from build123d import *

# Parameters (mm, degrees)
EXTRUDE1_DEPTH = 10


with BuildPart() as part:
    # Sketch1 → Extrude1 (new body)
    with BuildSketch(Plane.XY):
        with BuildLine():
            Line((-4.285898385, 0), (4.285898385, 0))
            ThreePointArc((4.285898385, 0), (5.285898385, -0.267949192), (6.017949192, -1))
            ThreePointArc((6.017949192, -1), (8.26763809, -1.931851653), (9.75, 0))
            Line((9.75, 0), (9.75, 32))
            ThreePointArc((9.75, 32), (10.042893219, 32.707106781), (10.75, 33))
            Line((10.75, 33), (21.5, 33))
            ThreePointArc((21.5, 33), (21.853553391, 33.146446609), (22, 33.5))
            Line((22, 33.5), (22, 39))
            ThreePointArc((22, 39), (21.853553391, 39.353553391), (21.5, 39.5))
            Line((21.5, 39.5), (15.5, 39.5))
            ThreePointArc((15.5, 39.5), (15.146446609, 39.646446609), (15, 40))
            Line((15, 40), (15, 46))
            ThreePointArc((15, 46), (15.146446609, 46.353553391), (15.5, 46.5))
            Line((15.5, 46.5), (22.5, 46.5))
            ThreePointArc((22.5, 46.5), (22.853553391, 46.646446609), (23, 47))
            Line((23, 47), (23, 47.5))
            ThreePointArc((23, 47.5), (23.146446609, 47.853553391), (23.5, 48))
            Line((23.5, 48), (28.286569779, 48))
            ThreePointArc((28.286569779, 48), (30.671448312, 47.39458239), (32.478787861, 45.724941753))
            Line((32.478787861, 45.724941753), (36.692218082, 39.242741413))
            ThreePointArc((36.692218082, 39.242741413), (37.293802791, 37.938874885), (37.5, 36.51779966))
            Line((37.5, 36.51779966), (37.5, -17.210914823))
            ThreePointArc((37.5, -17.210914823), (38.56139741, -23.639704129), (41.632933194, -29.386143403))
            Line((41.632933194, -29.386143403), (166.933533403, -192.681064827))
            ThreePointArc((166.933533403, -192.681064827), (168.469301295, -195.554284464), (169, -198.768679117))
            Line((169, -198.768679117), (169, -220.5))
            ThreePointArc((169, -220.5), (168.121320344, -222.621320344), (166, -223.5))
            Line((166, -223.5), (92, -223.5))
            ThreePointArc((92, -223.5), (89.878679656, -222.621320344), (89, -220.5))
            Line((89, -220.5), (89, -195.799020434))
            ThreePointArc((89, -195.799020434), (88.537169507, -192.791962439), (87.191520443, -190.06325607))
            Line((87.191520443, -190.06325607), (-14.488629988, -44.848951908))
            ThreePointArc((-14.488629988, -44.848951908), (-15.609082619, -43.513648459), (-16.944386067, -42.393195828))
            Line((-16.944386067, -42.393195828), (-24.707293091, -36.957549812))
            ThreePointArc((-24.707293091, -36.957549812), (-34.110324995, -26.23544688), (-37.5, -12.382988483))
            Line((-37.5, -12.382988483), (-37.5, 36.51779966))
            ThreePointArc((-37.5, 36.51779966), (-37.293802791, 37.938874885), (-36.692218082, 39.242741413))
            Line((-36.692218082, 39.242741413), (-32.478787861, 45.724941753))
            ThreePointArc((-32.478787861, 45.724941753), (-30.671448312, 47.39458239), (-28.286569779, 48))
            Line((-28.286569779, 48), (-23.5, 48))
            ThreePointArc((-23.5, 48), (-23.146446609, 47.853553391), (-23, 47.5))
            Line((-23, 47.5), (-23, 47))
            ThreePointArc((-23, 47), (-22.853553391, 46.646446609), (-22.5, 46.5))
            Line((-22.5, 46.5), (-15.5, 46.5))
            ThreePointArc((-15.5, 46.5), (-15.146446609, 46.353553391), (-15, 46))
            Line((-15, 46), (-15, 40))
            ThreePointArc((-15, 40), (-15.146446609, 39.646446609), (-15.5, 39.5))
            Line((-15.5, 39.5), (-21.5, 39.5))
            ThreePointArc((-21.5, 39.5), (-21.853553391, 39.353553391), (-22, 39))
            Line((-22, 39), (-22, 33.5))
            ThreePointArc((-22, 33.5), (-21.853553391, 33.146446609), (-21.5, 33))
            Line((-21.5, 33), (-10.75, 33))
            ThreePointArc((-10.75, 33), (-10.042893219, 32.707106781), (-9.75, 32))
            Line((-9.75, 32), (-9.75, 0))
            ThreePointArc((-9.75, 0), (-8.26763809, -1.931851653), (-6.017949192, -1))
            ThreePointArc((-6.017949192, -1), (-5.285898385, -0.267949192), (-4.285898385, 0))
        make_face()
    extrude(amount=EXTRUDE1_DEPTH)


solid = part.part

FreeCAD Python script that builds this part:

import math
import FreeCAD as App
import Part
import Sketcher
from FreeCAD import Vector
Q = App.Units.Quantity

doc = App.newDocument("Part")
body = doc.addObject("PartDesign::Body", "Body")

sketch1 = doc.addObject("Sketcher::SketchObject", "Sketch")
body.addObject(sketch1)
sketch1.AttachmentSupport = (doc.XY_Plane, [""])
sketch1.MapMode = "FlatFace"
sketch1.addGeometry(Part.LineSegment(Vector(4.29, 0, 0), Vector(-4.29, 0, 0)), False)
sketch1.addGeometry(Part.ArcOfCircle(Part.Circle(Vector(-4.29, -2, 0), Vector(0, 0, 1), 2), math.radians(90), math.radians(150)), False)
sketch1.addGeometry(Part.ArcOfCircle(Part.Circle(Vector(-7.75, 0, 0), Vector(0, 0, 1), 2), math.radians(180), math.radians(330)), False)
sketch1.addGeometry(Part.LineSegment(Vector(-9.75, 0, 0), Vector(-9.75, 32, 0)), False)
sketch1.addGeometry(Part.ArcOfCircle(Part.Circle(Vector(-10.75, 32, 0), Vector(0, 0, 1), 1), math.radians(0), math.radians(90)), False)
sketch1.addGeometry(Part.LineSegment(Vector(-10.75, 33, 0), Vector(-21.5, 33, 0)), False)
sketch1.addGeometry(Part.ArcOfCircle(Part.Circle(Vector(-21.5, 33.5, 0), Vector(0, 0, 1), 0.5), math.radians(180), math.radians(270)), False)
sketch1.addGeometry(Part.LineSegment(Vector(-22, 33.5, 0), Vector(-22, 39, 0)), False)
sketch1.addGeometry(Part.ArcOfCircle(Part.Circle(Vector(-21.5, 39, 0), Vector(0, 0, 1), 0.5), math.radians(90), math.radians(180)), False)
sketch1.addGeometry(Part.LineSegment(Vector(-21.5, 39.5, 0), Vector(-15.5, 39.5, 0)), False)
sketch1.addGeometry(Part.ArcOfCircle(Part.Circle(Vector(-15.5, 40, 0), Vector(0, 0, 1), 0.5), math.radians(-90), math.radians(0)), False)
sketch1.addGeometry(Part.LineSegment(Vector(-15, 40, 0), Vector(-15, 46, 0)), False)
sketch1.addGeometry(Part.ArcOfCircle(Part.Circle(Vector(-15.5, 46, 0), Vector(0, 0, 1), 0.5), math.radians(0), math.radians(90)), False)
sketch1.addGeometry(Part.LineSegment(Vector(-15.5, 46.5, 0), Vector(-22.5, 46.5, 0)), False)
sketch1.addGeometry(Part.ArcOfCircle(Part.Circle(Vector(-22.5, 47, 0), Vector(0, 0, 1), 0.5), math.radians(180), math.radians(270)), False)
sketch1.addGeometry(Part.LineSegment(Vector(-23, 47, 0), Vector(-23, 47.5, 0)), False)
sketch1.addGeometry(Part.ArcOfCircle(Part.Circle(Vector(-23.5, 47.5, 0), Vector(0, 0, 1), 0.5), math.radians(0), math.radians(90)), False)
sketch1.addGeometry(Part.LineSegment(Vector(-23.5, 48, 0), Vector(-28.29, 48, 0)), False)
sketch1.addGeometry(Part.ArcOfCircle(Part.Circle(Vector(-28.29, 43, 0), Vector(0, 0, 1), 5), math.radians(90), math.radians(147)), False)
sketch1.addGeometry(Part.LineSegment(Vector(-32.48, 45.72, 0), Vector(-36.69, 39.24, 0)), False)
sketch1.addGeometry(Part.ArcOfCircle(Part.Circle(Vector(-32.5, 36.52, 0), Vector(0, 0, 1), 5), math.radians(147), math.radians(180)), False)
sketch1.addGeometry(Part.LineSegment(Vector(-37.5, 36.52, 0), Vector(-37.5, -12.38, 0)), False)
sketch1.addGeometry(Part.ArcOfCircle(Part.Circle(Vector(-7.5, -12.38, 0), Vector(0, 0, 1), 30), math.radians(-180), math.radians(-125)), False)
sketch1.addGeometry(Part.LineSegment(Vector(-24.71, -36.96, 0), Vector(-16.94, -42.39, 0)), False)
sketch1.addGeometry(Part.ArcOfCircle(Part.Circle(Vector(-22.68, -50.58, 0), Vector(0, 0, 1), 10), math.radians(35), math.radians(55)), False)
sketch1.addGeometry(Part.LineSegment(Vector(-14.49, -44.85, 0), Vector(87.19, -190.06, 0)), False)
sketch1.addGeometry(Part.ArcOfCircle(Part.Circle(Vector(79, -195.8, 0), Vector(0, 0, 1), 10), math.radians(0), math.radians(35)), False)
sketch1.addGeometry(Part.LineSegment(Vector(89, -195.8, 0), Vector(89, -220.5, 0)), False)
sketch1.addGeometry(Part.ArcOfCircle(Part.Circle(Vector(92, -220.5, 0), Vector(0, 0, 1), 3), math.radians(180), math.radians(270)), False)
sketch1.addGeometry(Part.LineSegment(Vector(92, -223.5, 0), Vector(166, -223.5, 0)), False)
sketch1.addGeometry(Part.ArcOfCircle(Part.Circle(Vector(166, -220.5, 0), Vector(0, 0, 1), 3), math.radians(-90), math.radians(0)), False)
sketch1.addGeometry(Part.LineSegment(Vector(169, -220.5, 0), Vector(169, -198.77, 0)), False)
sketch1.addGeometry(Part.ArcOfCircle(Part.Circle(Vector(159, -198.77, 0), Vector(0, 0, 1), 10), math.radians(0), math.radians(37)), False)
sketch1.addGeometry(Part.LineSegment(Vector(166.93, -192.68, 0), Vector(41.63, -29.39, 0)), False)
sketch1.addGeometry(Part.ArcOfCircle(Part.Circle(Vector(57.5, -17.21, 0), Vector(0, 0, 1), 20), math.radians(180), math.radians(218)), False)
sketch1.addGeometry(Part.LineSegment(Vector(37.5, -17.21, 0), Vector(37.5, 36.52, 0)), False)
sketch1.addGeometry(Part.ArcOfCircle(Part.Circle(Vector(32.5, 36.52, 0), Vector(0, 0, 1), 5), math.radians(0), math.radians(33)), False)
sketch1.addGeometry(Part.LineSegment(Vector(36.69, 39.24, 0), Vector(32.48, 45.72, 0)), False)
sketch1.addGeometry(Part.ArcOfCircle(Part.Circle(Vector(28.29, 43, 0), Vector(0, 0, 1), 5), math.radians(33), math.radians(90)), False)
sketch1.addGeometry(Part.LineSegment(Vector(28.29, 48, 0), Vector(23.5, 48, 0)), False)
sketch1.addGeometry(Part.ArcOfCircle(Part.Circle(Vector(23.5, 47.5, 0), Vector(0, 0, 1), 0.5), math.radians(90), math.radians(180)), False)
sketch1.addGeometry(Part.LineSegment(Vector(23, 47.5, 0), Vector(23, 47, 0)), False)
sketch1.addGeometry(Part.ArcOfCircle(Part.Circle(Vector(22.5, 47, 0), Vector(0, 0, 1), 0.5), math.radians(-90), math.radians(0)), False)
sketch1.addGeometry(Part.LineSegment(Vector(22.5, 46.5, 0), Vector(15.5, 46.5, 0)), False)
sketch1.addGeometry(Part.ArcOfCircle(Part.Circle(Vector(15.5, 46, 0), Vector(0, 0, 1), 0.5), math.radians(90), math.radians(180)), False)
sketch1.addGeometry(Part.LineSegment(Vector(15, 46, 0), Vector(15, 40, 0)), False)
sketch1.addGeometry(Part.ArcOfCircle(Part.Circle(Vector(15.5, 40, 0), Vector(0, 0, 1), 0.5), math.radians(180), math.radians(270)), False)
sketch1.addGeometry(Part.LineSegment(Vector(15.5, 39.5, 0), Vector(21.5, 39.5, 0)), False)
sketch1.addGeometry(Part.ArcOfCircle(Part.Circle(Vector(21.5, 39, 0), Vector(0, 0, 1), 0.5), math.radians(0), math.radians(90)), False)
sketch1.addGeometry(Part.LineSegment(Vector(22, 39, 0), Vector(22, 33.5, 0)), False)
sketch1.addGeometry(Part.ArcOfCircle(Part.Circle(Vector(21.5, 33.5, 0), Vector(0, 0, 1), 0.5), math.radians(-90), math.radians(0)), False)
sketch1.addGeometry(Part.LineSegment(Vector(21.5, 33, 0), Vector(10.75, 33, 0)), False)
sketch1.addGeometry(Part.ArcOfCircle(Part.Circle(Vector(10.75, 32, 0), Vector(0, 0, 1), 1), math.radians(90), math.radians(180)), False)
sketch1.addGeometry(Part.LineSegment(Vector(9.75, 32, 0), Vector(9.75, 0, 0)), False)
sketch1.addGeometry(Part.ArcOfCircle(Part.Circle(Vector(7.75, 0, 0), Vector(0, 0, 1), 2), math.radians(-150), math.radians(0)), False)
sketch1.addGeometry(Part.ArcOfCircle(Part.Circle(Vector(4.29, -2, 0), Vector(0, 0, 1), 2), math.radians(30), math.radians(90)), False)
sketch1.addConstraint(Sketcher.Constraint("Tangent", 0, 2, 1, 1))
sketch1.addConstraint(Sketcher.Constraint("Tangent", 1, 2, 2, 2))
sketch1.addConstraint(Sketcher.Constraint("Tangent", 2, 1, 3, 1))
sketch1.addConstraint(Sketcher.Constraint("Tangent", 3, 2, 4, 1))
sketch1.addConstraint(Sketcher.Constraint("Tangent", 4, 2, 5, 1))
sketch1.addConstraint(Sketcher.Constraint("Tangent", 5, 2, 6, 2))
sketch1.addConstraint(Sketcher.Constraint("Tangent", 6, 1, 7, 1))
sketch1.addConstraint(Sketcher.Constraint("Tangent", 7, 2, 8, 2))
sketch1.addConstraint(Sketcher.Constraint("Tangent", 8, 1, 9, 1))
sketch1.addConstraint(Sketcher.Constraint("Tangent", 9, 2, 10, 1))
sketch1.addConstraint(Sketcher.Constraint("Tangent", 10, 2, 11, 1))
sketch1.addConstraint(Sketcher.Constraint("Tangent", 11, 2, 12, 1))
sketch1.addConstraint(Sketcher.Constraint("Tangent", 12, 2, 13, 1))
sketch1.addConstraint(Sketcher.Constraint("Tangent", 13, 2, 14, 2))
sketch1.addConstraint(Sketcher.Constraint("Tangent", 14, 1, 15, 1))
sketch1.addConstraint(Sketcher.Constraint("Tangent", 15, 2, 16, 1))
sketch1.addConstraint(Sketcher.Constraint("Tangent", 16, 2, 17, 1))
sketch1.addConstraint(Sketcher.Constraint("Tangent", 17, 2, 18, 1))
sketch1.addConstraint(Sketcher.Constraint("Tangent", 18, 2, 19, 1))
sketch1.addConstraint(Sketcher.Constraint("Tangent", 19, 2, 20, 1))
sketch1.addConstraint(Sketcher.Constraint("Tangent", 20, 2, 21, 1))
sketch1.addConstraint(Sketcher.Constraint("Tangent", 21, 2, 22, 1))
sketch1.addConstraint(Sketcher.Constraint("Tangent", 22, 2, 23, 1))
sketch1.addConstraint(Sketcher.Constraint("Tangent", 23, 2, 24, 2))
sketch1.addConstraint(Sketcher.Constraint("Tangent", 24, 1, 25, 1))
sketch1.addConstraint(Sketcher.Constraint("Tangent", 25, 2, 26, 2))
sketch1.addConstraint(Sketcher.Constraint("Tangent", 26, 1, 27, 1))
sketch1.addConstraint(Sketcher.Constraint("Tangent", 27, 2, 28, 1))
sketch1.addConstraint(Sketcher.Constraint("Tangent", 28, 2, 29, 1))
sketch1.addConstraint(Sketcher.Constraint("Tangent", 29, 2, 30, 1))
sketch1.addConstraint(Sketcher.Constraint("Tangent", 30, 2, 31, 1))
sketch1.addConstraint(Sketcher.Constraint("Tangent", 31, 2, 32, 1))
sketch1.addConstraint(Sketcher.Constraint("Tangent", 32, 2, 33, 1))
sketch1.addConstraint(Sketcher.Constraint("Tangent", 33, 2, 34, 2))
sketch1.addConstraint(Sketcher.Constraint("Tangent", 34, 1, 35, 1))
sketch1.addConstraint(Sketcher.Constraint("Tangent", 35, 2, 36, 1))
sketch1.addConstraint(Sketcher.Constraint("Tangent", 36, 2, 37, 1))
sketch1.addConstraint(Sketcher.Constraint("Tangent", 37, 2, 38, 1))
sketch1.addConstraint(Sketcher.Constraint("Tangent", 38, 2, 39, 1))
sketch1.addConstraint(Sketcher.Constraint("Tangent", 39, 2, 40, 1))
sketch1.addConstraint(Sketcher.Constraint("Tangent", 40, 2, 41, 1))
sketch1.addConstraint(Sketcher.Constraint("Tangent", 41, 2, 42, 2))
sketch1.addConstraint(Sketcher.Constraint("Tangent", 42, 1, 43, 1))
sketch1.addConstraint(Sketcher.Constraint("Tangent", 43, 2, 44, 1))
sketch1.addConstraint(Sketcher.Constraint("Tangent", 44, 2, 45, 1))
sketch1.addConstraint(Sketcher.Constraint("Tangent", 45, 2, 46, 1))
sketch1.addConstraint(Sketcher.Constraint("Tangent", 46, 2, 47, 1))
sketch1.addConstraint(Sketcher.Constraint("Tangent", 47, 2, 48, 2))
sketch1.addConstraint(Sketcher.Constraint("Tangent", 48, 1, 49, 1))
sketch1.addConstraint(Sketcher.Constraint("Tangent", 49, 2, 50, 2))
sketch1.addConstraint(Sketcher.Constraint("Tangent", 50, 1, 51, 1))
sketch1.addConstraint(Sketcher.Constraint("Tangent", 51, 2, 52, 1))
sketch1.addConstraint(Sketcher.Constraint("Tangent", 52, 2, 53, 1))
sketch1.addConstraint(Sketcher.Constraint("Tangent", 53, 2, 54, 2))
sketch1.addConstraint(Sketcher.Constraint("Tangent", 54, 1, 55, 1))
sketch1.addConstraint(Sketcher.Constraint("Tangent", 55, 2, 0, 1))
sketch1.addConstraint(Sketcher.Constraint("Horizontal", 0))
sketch1.addConstraint(Sketcher.Constraint("Vertical", 3))
sketch1.addConstraint(Sketcher.Constraint("Horizontal", 5))
sketch1.addConstraint(Sketcher.Constraint("Vertical", 7))
sketch1.addConstraint(Sketcher.Constraint("Horizontal", 9))
sketch1.addConstraint(Sketcher.Constraint("Vertical", 11))
sketch1.addConstraint(Sketcher.Constraint("Horizontal", 13))
sketch1.addConstraint(Sketcher.Constraint("Vertical", 15))
sketch1.addConstraint(Sketcher.Constraint("Horizontal", 17))
sketch1.addConstraint(Sketcher.Constraint("Vertical", 21))
sketch1.addConstraint(Sketcher.Constraint("Vertical", 27))
sketch1.addConstraint(Sketcher.Constraint("Horizontal", 29))
sketch1.addConstraint(Sketcher.Constraint("Vertical", 31))
sketch1.addConstraint(Sketcher.Constraint("Vertical", 35))
sketch1.addConstraint(Sketcher.Constraint("Horizontal", 39))
sketch1.addConstraint(Sketcher.Constraint("Vertical", 41))
sketch1.addConstraint(Sketcher.Constraint("Horizontal", 43))
sketch1.addConstraint(Sketcher.Constraint("Vertical", 45))
sketch1.addConstraint(Sketcher.Constraint("Horizontal", 47))
sketch1.addConstraint(Sketcher.Constraint("Vertical", 49))
sketch1.addConstraint(Sketcher.Constraint("Horizontal", 51))
sketch1.addConstraint(Sketcher.Constraint("Vertical", 53))
sketch1.addConstraint(Sketcher.Constraint("Equal", 1, 2))
sketch1.addConstraint(Sketcher.Constraint("Equal", 6, 8))
sketch1.addConstraint(Sketcher.Constraint("Equal", 8, 10))
sketch1.addConstraint(Sketcher.Constraint("Equal", 10, 12))
sketch1.addConstraint(Sketcher.Constraint("Equal", 12, 14))
sketch1.addConstraint(Sketcher.Constraint("Equal", 14, 16))
sketch1.addConstraint(Sketcher.Constraint("Equal", 18, 20))
sketch1.addConstraint(Sketcher.Constraint("Equal", 24, 26))
sketch1.addConstraint(Sketcher.Constraint("Equal", 28, 30))
sketch1.addConstraint(Sketcher.Constraint("Equal", 26, 32))
sketch1.addConstraint(Sketcher.Constraint("Equal", 20, 36))
sketch1.addConstraint(Sketcher.Constraint("Equal", 36, 38))
sketch1.addConstraint(Sketcher.Constraint("Equal", 16, 40))
sketch1.addConstraint(Sketcher.Constraint("Equal", 40, 42))
sketch1.addConstraint(Sketcher.Constraint("Equal", 42, 44))
sketch1.addConstraint(Sketcher.Constraint("Equal", 44, 46))
sketch1.addConstraint(Sketcher.Constraint("Equal", 46, 48))
sketch1.addConstraint(Sketcher.Constraint("Equal", 48, 50))
sketch1.addConstraint(Sketcher.Constraint("Equal", 4, 52))
sketch1.addConstraint(Sketcher.Constraint("Equal", 2, 54))
sketch1.addConstraint(Sketcher.Constraint("Equal", 54, 55))
sketch1.addConstraint(Sketcher.Constraint("Symmetric", 2, 3, 54, 3, -1, 1))
sketch1.addConstraint(Sketcher.Constraint("Symmetric", 0, 2, 55, 2, -1, 1))
sketch1.addConstraint(Sketcher.Constraint("Symmetric", 20, 3, 36, 3, -2))
sketch1.addConstraint(Sketcher.Constraint("Symmetric", 18, 3, 38, 3, -2))
sketch1.addConstraint(Sketcher.Constraint("Symmetric", 14, 3, 42, 3, -2))
sketch1.addConstraint(Sketcher.Constraint("Symmetric", 10, 3, 46, 3, -2))
sketch1.addConstraint(Sketcher.Constraint("Symmetric", 6, 3, 50, 3, -2))
sketch1.addConstraint(Sketcher.Constraint("Equal", 47, 11))
sketch1.addConstraint(Sketcher.Constraint("Radius", 1, 2.0))
sketch1.addConstraint(Sketcher.Constraint("Radius", 4, 1.0))
sketch1.addConstraint(Sketcher.Constraint("Radius", 18, 5.0))
sketch1.addConstraint(Sketcher.Constraint("Radius", 22, 30.0))
sketch1.addConstraint(Sketcher.Constraint("Radius", 24, 10.0))
sketch1.addConstraint(Sketcher.Constraint("Radius", 28, 3.0))
sketch1.addConstraint(Sketcher.Constraint("Radius", 34, 20.0))
sketch1.addConstraint(Sketcher.Constraint("Radius", 6, 0.5))
sketch1.addConstraint(Sketcher.Constraint("DistanceX", 9, 1, 9, 2, 6.0))
sketch1.addConstraint(Sketcher.Constraint("DistanceX", 13, 2, 13, 1, 7.0))
sketch1.addConstraint(Sketcher.Constraint("DistanceX", 29, 1, 29, 2, 74.0))
sketch1.addConstraint(Sketcher.Constraint("DistanceY", 3, 1, 3, 2, 32.0))
sketch1.addConstraint(Sketcher.Constraint("Angle", 23, Q("-35 deg")))
sketch1.addConstraint(Sketcher.Constraint("Angle", 25, Q("-55 deg")))
sketch1.addConstraint(Sketcher.Constraint("DistanceY", 7, 1, 7, 2, 5.5))
sketch1.addConstraint(Sketcher.Constraint("DistanceY", 15, 1, 15, 2, 0.5))
sketch1.addConstraint(Sketcher.Constraint("DistanceX", -1, 1, 26, 3, 79.0))
sketch1.addConstraint(Sketcher.Constraint("DistanceX", 6, 1, -1, 1, 22.0))
sketch1.addConstraint(Sketcher.Constraint("Angle", 33, Q("127.5 deg")))
sketch1.addConstraint(Sketcher.Constraint("DistanceX", 5, 2, 5, 1, 10.75))
sketch1.addConstraint(Sketcher.Constraint("DistanceX", 20, 3, -1, 1, 32.5))
sketch1.addConstraint(Sketcher.Constraint("DistanceY", 28, 3, -1, 1, 220.5))
sketch1.addConstraint(Sketcher.Constraint("DistanceX", 17, 2, 17, 1, 4.78657))
sketch1.addConstraint(Sketcher.Constraint("DistanceY", 21, 2, 21, 1, 48.900788))
sketch1.addConstraint(Sketcher.Constraint("DistanceY", 27, 2, 27, 1, 24.70098))
sketch1.addConstraint(Sketcher.Constraint("DistanceY", 31, 1, 31, 2, 21.731321))
sketch1.addConstraint(Sketcher.Constraint("DistanceY", -1, 1, 20, 3, 36.5178))
pad1 = doc.addObject("PartDesign::Pad", "Pad")
body.addObject(pad1)
pad1.Profile = sketch1
pad1.Length = 10

doc.recompute()
